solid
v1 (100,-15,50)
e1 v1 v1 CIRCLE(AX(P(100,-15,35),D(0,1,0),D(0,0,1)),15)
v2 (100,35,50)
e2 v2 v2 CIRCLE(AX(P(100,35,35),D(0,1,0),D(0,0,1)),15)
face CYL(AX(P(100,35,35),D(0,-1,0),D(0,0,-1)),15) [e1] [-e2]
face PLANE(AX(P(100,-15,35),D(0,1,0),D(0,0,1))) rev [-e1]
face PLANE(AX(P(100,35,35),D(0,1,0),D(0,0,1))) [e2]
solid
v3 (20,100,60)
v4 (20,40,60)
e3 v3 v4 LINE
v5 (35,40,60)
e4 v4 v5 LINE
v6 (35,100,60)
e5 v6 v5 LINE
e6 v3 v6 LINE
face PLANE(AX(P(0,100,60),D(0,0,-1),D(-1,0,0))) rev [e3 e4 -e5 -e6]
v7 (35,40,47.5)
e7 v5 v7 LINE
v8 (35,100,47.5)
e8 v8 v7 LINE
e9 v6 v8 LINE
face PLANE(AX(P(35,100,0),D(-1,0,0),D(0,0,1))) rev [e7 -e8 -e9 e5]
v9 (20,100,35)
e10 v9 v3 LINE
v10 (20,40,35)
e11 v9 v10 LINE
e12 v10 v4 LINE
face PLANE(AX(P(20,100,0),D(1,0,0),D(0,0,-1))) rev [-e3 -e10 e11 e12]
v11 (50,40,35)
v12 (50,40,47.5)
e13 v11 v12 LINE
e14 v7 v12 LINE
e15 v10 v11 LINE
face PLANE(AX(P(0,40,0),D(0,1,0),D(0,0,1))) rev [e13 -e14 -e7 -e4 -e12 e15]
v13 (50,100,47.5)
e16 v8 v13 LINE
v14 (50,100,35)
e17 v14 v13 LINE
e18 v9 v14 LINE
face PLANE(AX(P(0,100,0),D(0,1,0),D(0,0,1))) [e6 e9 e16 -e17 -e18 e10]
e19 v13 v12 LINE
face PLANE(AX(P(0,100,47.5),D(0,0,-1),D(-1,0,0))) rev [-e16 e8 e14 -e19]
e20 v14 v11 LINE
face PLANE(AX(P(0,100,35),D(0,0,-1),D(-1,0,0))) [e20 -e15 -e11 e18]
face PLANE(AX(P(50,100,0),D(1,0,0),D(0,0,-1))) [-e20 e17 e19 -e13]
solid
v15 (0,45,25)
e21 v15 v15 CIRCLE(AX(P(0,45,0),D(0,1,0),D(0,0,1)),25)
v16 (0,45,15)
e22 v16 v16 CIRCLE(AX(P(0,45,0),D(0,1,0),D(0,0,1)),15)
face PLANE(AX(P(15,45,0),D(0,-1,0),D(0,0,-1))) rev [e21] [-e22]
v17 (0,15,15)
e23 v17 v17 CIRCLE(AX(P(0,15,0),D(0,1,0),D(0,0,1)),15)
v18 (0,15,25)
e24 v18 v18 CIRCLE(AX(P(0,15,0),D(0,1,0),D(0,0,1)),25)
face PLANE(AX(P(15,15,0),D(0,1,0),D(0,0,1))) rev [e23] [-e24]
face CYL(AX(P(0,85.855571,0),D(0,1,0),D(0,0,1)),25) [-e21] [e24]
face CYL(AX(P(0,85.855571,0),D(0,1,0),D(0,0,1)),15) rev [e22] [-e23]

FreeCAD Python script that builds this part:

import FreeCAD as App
import Part
import Sketcher


def add_polygon(sketch, points):
    """Adds a closed chain of lines whose ends are joined by coincident constraints."""
    first, n = sketch.GeometryCount, len(points)
    for a, b in zip(points, points[1:] + points[:1]):
        sketch.addGeometry(Part.LineSegment(App.Vector(*a, 0), App.Vector(*b, 0)), False)
    for i in range(n):
        sketch.addConstraint(Sketcher.Constraint("Coincident", first + i, 2, first + (i + 1) % n, 1))

doc = App.newDocument("Part")
body = doc.addObject("PartDesign::Body", "Body")

# Sketch on XZ plane
sketch1 = body.newObject("Sketcher::SketchObject", "Sketch")
sketch1.AttachmentSupport = (doc.getObject("XZ_Plane"), [""])
sketch1.MapMode = "FlatFace"
sketch1.AttachmentOffset = App.Placement(App.Vector(0, 0, -40), App.Rotation())
add_polygon(sketch1, [(50, 35), (20, 35), (20, 60), (35, 60), (35, 47.5), (50, 47.5)])  # lines 0-5
sketch1.addConstraint([
    Sketcher.Constraint("Horizontal", 0),
    Sketcher.Constraint("Vertical", 1),
    Sketcher.Constraint("Horizontal", 2),
    Sketcher.Constraint("Vertical", 3),
    Sketcher.Constraint("Horizontal", 4),
    Sketcher.Constraint("Vertical", 5),
    Sketcher.Constraint("Equal", 2, 4),
    Sketcher.Constraint("Equal", 3, 5),
    Sketcher.Constraint("DistanceX", 0, 2, 0, 1, 30.0),
    Sketcher.Constraint("DistanceY", 1, 1, 1, 2, 25.0),
    Sketcher.Constraint("DistanceX", -1, 1, 0, 2, 20.0),
    Sketcher.Constraint("DistanceY", -1, 1, 0, 2, 35.0),
])
pad1 = body.newObject("PartDesign::Pad", "Pad")
pad1.Profile = sketch1
pad1.Length = 60
pad1.Reversed = True
body2 = doc.addObject("PartDesign::Body", "Body001")

# Sketch on XZ plane
sketch2 = body2.newObject("Sketcher::SketchObject", "Sketch001")
sketch2.AttachmentSupport = (doc.getObject("XZ_Plane001"), [""])
sketch2.MapMode = "FlatFace"
sketch2.AttachmentOffset = App.Placement(App.Vector(0, 0, 15), App.Rotation())
sketch2.addGeometry(Part.Circle(App.Vector(100, 35, 0), App.Vector(0, 0, 1), 15), False)
sketch2.addConstraint([
    Sketcher.Constraint("Diameter", 0, 30.0),
    Sketcher.Constraint("DistanceX", -1, 1, 0, 3, 100.0),
    Sketcher.Constraint("DistanceY", -1, 1, 0, 3, 35.0),
])
pad2 = body2.newObject("PartDesign::Pad", "Pad001")
pad2.Profile = sketch2
pad2.Length = 50
pad2.Reversed = True
body3 = doc.addObject("PartDesign::Body", "Body002")

# Sketch on XY plane
sketch3 = body3.newObject("Sketcher::SketchObject", "Sketch002")
sketch3.AttachmentSupport = (doc.getObject("XY_Plane002"), [""])
sketch3.MapMode = "FlatFace"
add_polygon(sketch3, [(15, 45), (15, 15), (25, 15), (25, 45)])  # lines 0-3
sketch3.addConstraint([
    Sketcher.Constraint("Vertical", 0),
    Sketcher.Constraint("Horizontal", 1),
    Sketcher.Constraint("Vertical", 2),
    Sketcher.Constraint("Horizontal", 3),
    Sketcher.Constraint("DistanceX", 1, 1, 1, 2, 10.0),
    Sketcher.Constraint("DistanceY", 0, 2, 0, 1, 30.0),
    Sketcher.Constraint("DistanceX", -1, 1, 0, 2, 15.0),
    Sketcher.Constraint("DistanceY", -1, 1, 0, 2, 15.0),
])
revolution = body3.newObject("PartDesign::Revolution", "Revolution")
revolution.Profile = sketch3
revolution.ReferenceAxis = (sketch3, ["V_Axis"])
revolution.Angle = 360

doc.recompute()
